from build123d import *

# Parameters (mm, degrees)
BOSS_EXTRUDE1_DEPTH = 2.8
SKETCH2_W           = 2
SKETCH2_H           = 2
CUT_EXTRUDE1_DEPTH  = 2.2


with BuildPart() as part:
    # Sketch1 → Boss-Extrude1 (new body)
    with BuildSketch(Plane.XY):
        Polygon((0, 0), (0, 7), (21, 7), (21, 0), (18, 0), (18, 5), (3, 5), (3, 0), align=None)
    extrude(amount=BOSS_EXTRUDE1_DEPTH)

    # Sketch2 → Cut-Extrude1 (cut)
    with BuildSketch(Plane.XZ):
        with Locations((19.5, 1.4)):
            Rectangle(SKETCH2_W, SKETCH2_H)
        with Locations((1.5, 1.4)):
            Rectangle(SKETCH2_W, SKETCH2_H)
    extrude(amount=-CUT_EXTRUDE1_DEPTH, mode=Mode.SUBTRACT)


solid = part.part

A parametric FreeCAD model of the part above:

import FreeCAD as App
import Part
import Sketcher
from FreeCAD import Vector
Q = App.Units.Quantity

doc = App.newDocument("Part")
body = doc.addObject("PartDesign::Body", "Body")

sketch1 = body.newObject("Sketcher::SketchObject", "Sketch")
sketch1.AttachmentSupport = (doc.getObject("XY_Plane"), [""])
sketch1.MapMode = "FlatFace"
sketch1.addGeometry([
    Part.LineSegment(Vector(0, 7, 0), Vector(0, 0, 0)),
    Part.LineSegment(Vector(0, 0, 0), Vector(3, 0, 0)),
    Part.LineSegment(Vector(3, 0, 0), Vector(3, 5, 0)),
    Part.LineSegment(Vector(3, 5, 0), Vector(18, 5, 0)),
    Part.LineSegment(Vector(18, 5, 0), Vector(18, 0, 0)),
    Part.LineSegment(Vector(18, 0, 0), Vector(21, 0, 0)),
    Part.LineSegment(Vector(21, 0, 0), Vector(21, 7, 0)),
    Part.LineSegment(Vector(21, 7, 0), Vector(0, 7, 0)),
], False)
sketch1.addConstraint([
    Sketcher.Constraint("Coincident", 0, 2, 1, 1),
    Sketcher.Constraint("Coincident", 1, 2, 2, 1),
    Sketcher.Constraint("Coincident", 2, 2, 3, 1),
    Sketcher.Constraint("Coincident", 3, 2, 4, 1),
    Sketcher.Constraint("Coincident", 4, 2, 5, 1),
    Sketcher.Constraint("Coincident", 5, 2, 6, 1),
    Sketcher.Constraint("Coincident", 6, 2, 7, 1),
    Sketcher.Constraint("Coincident", 7, 2, 0, 1),
    Sketcher.Constraint("Vertical", 0),
    Sketcher.Constraint("Horizontal", 1),
    Sketcher.Constraint("Vertical", 2),
    Sketcher.Constraint("Horizontal", 3),
    Sketcher.Constraint("Vertical", 4),
    Sketcher.Constraint("Horizontal", 5),
    Sketcher.Constraint("Vertical", 6),
    Sketcher.Constraint("Horizontal", 7),
    Sketcher.Constraint("Coincident", 0, 2, -1, 1),
    Sketcher.Constraint("PointOnObject", 4, 2, -1),
    Sketcher.Constraint("Equal", 1, 5),
    Sketcher.Constraint("DistanceX", 1, 1, 1, 2, Q("3 mm")),
    Sketcher.Constraint("DistanceX", 3, 1, 3, 2, Q("15 mm")),
    Sketcher.Constraint("DistanceY", 0, 2, 0, 1, Q("7 mm")),
    Sketcher.Constraint("DistanceY", 2, 1, 2, 2, Q("5 mm")),
])
pad1 = body.newObject("PartDesign::Pad", "Pad")
pad1.Profile = sketch1
pad1.Length = 2.8

sketch2 = body.newObject("Sketcher::SketchObject", "Sketch001")
sketch2.AttachmentSupport = (doc.getObject("XZ_Plane"), [""])
sketch2.MapMode = "FlatFace"
sketch2.addGeometry([
    Part.LineSegment(Vector(18.5, 2.4, 0), Vector(18.5, 0.4, 0)),
    Part.LineSegment(Vector(18.5, 0.4, 0), Vector(20.5, 0.4, 0)),
    Part.LineSegment(Vector(20.5, 0.4, 0), Vector(20.5, 2.4, 0)),
    Part.LineSegment(Vector(20.5, 2.4, 0), Vector(18.5, 2.4, 0)),
    Part.LineSegment(Vector(0.5, 2.4, 0), Vector(0.5, 0.4, 0)),
    Part.LineSegment(Vector(0.5, 0.4, 0), Vector(2.5, 0.4, 0)),
    Part.LineSegment(Vector(2.5, 0.4, 0), Vector(2.5, 2.4, 0)),
    Part.LineSegment(Vector(2.5, 2.4, 0), Vector(0.5, 2.4, 0)),
], False)
sketch2.addConstraint([
    Sketcher.Constraint("Coincident", 0, 2, 1, 1),
    Sketcher.Constraint("Coincident", 1, 2, 2, 1),
    Sketcher.Constraint("Coincident", 2, 2, 3, 1),
    Sketcher.Constraint("Coincident", 3, 2, 0, 1),
    Sketcher.Constraint("Coincident", 4, 2, 5, 1),
    Sketcher.Constraint("Coincident", 5, 2, 6, 1),
    Sketcher.Constraint("Coincident", 6, 2, 7, 1),
    Sketcher.Constraint("Coincident", 7, 2, 4, 1),
    Sketcher.Constraint("Vertical", 0),
    Sketcher.Constraint("Horizontal", 1),
    Sketcher.Constraint("Vertical", 2),
    Sketcher.Constraint("Horizontal", 3),
    Sketcher.Constraint("Vertical", 4),
    Sketcher.Constraint("Horizontal", 5),
    Sketcher.Constraint("Vertical", 6),
    Sketcher.Constraint("Horizontal", 7),
    Sketcher.Constraint("Horizontal", 1, 2, 4, 2),
    Sketcher.Constraint("Horizontal", 3, 2, 6, 2),
    Sketcher.Constraint("Equal", 3, 5),
    Sketcher.Constraint("Equal", 7, 0),
    Sketcher.Constraint("DistanceX", 1, 1, 1, 2, Q("2 mm")),
    Sketcher.Constraint("DistanceX", 4, 2, 0, 2, Q("18 mm")),
    Sketcher.Constraint("DistanceX", -1, 1, 0, 2, Q("18.5 mm")),
    Sketcher.Constraint("DistanceY", -1, 1, 0, 2, Q("0.4 mm")),
])
pocket1 = body.newObject("PartDesign::Pocket", "Pocket")
pocket1.Profile = sketch2
pocket1.Length = 2.2

doc.recompute()
